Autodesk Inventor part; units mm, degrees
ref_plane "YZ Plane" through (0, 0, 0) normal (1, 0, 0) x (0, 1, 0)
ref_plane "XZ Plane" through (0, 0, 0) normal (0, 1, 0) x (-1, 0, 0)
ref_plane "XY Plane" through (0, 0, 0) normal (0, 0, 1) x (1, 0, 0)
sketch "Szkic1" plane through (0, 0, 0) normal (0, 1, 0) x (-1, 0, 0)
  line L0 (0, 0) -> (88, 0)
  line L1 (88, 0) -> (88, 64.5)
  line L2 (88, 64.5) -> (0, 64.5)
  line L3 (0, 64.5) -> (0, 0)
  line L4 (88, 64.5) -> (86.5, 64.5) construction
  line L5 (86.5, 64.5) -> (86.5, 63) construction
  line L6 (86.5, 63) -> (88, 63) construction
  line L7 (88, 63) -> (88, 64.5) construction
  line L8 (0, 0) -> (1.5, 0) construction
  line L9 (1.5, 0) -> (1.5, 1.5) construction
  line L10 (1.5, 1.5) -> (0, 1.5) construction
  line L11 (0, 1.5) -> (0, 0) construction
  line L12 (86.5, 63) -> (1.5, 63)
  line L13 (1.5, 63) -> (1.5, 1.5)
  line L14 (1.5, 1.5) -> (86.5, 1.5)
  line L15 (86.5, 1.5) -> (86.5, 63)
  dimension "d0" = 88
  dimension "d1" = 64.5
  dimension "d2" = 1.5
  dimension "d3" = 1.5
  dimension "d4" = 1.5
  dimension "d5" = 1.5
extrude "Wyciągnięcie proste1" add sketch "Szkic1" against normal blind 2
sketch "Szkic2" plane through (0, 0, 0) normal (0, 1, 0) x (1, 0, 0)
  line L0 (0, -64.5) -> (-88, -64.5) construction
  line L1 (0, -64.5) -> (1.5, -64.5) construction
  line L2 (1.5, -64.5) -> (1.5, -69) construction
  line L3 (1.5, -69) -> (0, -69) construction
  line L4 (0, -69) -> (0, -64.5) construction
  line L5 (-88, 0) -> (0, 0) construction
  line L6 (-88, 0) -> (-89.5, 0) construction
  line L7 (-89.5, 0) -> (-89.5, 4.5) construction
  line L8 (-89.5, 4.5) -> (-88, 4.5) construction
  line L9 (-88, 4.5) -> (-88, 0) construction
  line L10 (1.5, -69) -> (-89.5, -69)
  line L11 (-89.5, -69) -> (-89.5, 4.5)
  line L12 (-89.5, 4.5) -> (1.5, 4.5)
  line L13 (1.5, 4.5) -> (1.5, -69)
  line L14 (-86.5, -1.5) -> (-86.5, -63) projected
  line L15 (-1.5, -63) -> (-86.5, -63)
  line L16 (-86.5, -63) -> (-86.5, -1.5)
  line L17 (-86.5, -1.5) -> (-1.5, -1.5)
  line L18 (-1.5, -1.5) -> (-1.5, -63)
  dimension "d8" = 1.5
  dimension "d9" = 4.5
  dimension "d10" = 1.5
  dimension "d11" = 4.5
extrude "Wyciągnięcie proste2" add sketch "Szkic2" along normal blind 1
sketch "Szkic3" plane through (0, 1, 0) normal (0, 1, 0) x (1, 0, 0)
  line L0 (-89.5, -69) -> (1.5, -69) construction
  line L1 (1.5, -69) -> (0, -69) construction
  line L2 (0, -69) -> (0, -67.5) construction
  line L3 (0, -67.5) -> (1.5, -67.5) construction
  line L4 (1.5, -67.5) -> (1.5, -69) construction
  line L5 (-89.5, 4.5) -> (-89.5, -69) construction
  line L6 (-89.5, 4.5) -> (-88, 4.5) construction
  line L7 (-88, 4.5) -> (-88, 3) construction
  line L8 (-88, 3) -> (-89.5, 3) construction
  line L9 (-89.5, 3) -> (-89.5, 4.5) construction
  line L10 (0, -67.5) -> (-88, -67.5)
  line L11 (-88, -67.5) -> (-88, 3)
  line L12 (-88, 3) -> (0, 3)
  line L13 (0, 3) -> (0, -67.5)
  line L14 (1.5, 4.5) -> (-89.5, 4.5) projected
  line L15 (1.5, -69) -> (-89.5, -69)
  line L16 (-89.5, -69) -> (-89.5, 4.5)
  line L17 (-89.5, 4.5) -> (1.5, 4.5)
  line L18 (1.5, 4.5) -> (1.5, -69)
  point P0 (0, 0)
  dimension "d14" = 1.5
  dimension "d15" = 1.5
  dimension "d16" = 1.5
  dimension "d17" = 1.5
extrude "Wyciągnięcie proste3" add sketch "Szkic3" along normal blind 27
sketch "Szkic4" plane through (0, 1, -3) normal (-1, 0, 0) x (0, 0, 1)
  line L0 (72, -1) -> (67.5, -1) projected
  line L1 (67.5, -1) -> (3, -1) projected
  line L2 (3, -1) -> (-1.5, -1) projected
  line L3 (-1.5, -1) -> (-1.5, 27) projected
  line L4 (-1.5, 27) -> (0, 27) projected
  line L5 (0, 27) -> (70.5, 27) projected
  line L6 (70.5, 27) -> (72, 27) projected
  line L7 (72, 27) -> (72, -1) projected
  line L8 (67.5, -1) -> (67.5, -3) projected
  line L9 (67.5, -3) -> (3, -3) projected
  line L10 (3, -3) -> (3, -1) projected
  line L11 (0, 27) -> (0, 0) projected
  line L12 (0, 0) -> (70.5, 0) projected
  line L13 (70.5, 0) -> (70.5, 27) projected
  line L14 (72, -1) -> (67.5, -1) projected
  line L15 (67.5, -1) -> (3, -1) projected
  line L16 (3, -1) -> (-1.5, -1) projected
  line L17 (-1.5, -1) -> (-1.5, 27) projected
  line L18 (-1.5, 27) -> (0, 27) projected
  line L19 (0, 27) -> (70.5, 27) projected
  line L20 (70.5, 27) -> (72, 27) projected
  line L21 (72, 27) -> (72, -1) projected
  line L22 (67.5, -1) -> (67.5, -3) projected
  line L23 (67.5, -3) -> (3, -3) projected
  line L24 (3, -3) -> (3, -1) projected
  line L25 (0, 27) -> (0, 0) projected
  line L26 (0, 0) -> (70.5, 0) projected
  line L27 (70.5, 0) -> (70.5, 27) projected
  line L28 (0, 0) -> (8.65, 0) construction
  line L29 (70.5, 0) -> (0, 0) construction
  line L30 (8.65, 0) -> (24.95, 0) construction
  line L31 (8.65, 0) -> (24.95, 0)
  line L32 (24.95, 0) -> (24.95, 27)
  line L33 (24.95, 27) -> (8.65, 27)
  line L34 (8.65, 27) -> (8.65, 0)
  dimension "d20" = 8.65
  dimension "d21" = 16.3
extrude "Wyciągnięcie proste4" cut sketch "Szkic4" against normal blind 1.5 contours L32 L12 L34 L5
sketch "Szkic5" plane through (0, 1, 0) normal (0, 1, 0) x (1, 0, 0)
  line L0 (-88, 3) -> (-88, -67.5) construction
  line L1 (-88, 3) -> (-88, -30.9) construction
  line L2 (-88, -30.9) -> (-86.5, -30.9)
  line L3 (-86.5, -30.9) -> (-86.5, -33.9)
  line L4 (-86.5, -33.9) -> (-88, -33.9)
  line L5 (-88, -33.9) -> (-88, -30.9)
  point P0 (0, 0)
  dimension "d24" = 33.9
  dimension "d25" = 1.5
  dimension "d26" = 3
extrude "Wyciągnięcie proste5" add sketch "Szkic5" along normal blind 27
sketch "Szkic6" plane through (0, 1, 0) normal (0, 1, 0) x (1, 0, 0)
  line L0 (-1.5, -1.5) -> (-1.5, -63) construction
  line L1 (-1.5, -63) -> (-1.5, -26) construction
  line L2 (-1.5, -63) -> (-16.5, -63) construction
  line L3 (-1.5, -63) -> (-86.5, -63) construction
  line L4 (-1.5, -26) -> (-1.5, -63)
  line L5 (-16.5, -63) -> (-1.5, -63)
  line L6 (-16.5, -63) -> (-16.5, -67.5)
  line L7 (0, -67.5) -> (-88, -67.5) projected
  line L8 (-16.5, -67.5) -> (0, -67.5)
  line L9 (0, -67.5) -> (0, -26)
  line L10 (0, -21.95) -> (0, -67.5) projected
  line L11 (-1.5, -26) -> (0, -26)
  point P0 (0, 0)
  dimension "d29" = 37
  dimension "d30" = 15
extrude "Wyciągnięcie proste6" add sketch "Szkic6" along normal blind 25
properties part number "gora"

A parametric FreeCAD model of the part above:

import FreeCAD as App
import Part
import Sketcher

V = App.Vector
Q = App.Units.Quantity


def add_polygon(sketch, points):
    """Adds a closed chain of lines whose ends are joined by coincident constraints."""
    first, n = sketch.GeometryCount, len(points)
    for a, b in zip(points, points[1:] + points[:1]):
        sketch.addGeometry(Part.LineSegment(App.Vector(*a, 0), App.Vector(*b, 0)), False)
    for i in range(n):
        sketch.addConstraint(Sketcher.Constraint("Coincident", first + i, 2, first + (i + 1) % n, 1))

doc = App.newDocument("Part")
body = doc.addObject("PartDesign::Body", "Body")

# Sketch on XZ plane
sketch1 = body.newObject("Sketcher::SketchObject", "Sketch")
sketch1.AttachmentSupport = (doc.getObject("XZ_Plane"), [""])
sketch1.MapMode = "FlatFace"
add_polygon(sketch1, [(0, 64.5), (0, 0), (-88, 0), (-88, 64.5)])  # lines 0-3
add_polygon(sketch1, [(-1.5, 63), (-86.5, 63), (-86.5, 1.5), (-1.5, 1.5)])  # lines 4-7
sketch1.addConstraint(Sketcher.Constraint("Vertical", 0))
sketch1.addConstraint(Sketcher.Constraint("Horizontal", 1))
sketch1.addConstraint(Sketcher.Constraint("Vertical", 2))
sketch1.addConstraint(Sketcher.Constraint("Horizontal", 3))
sketch1.addConstraint(Sketcher.Constraint("Horizontal", 4))
sketch1.addConstraint(Sketcher.Constraint("Vertical", 5))
sketch1.addConstraint(Sketcher.Constraint("Horizontal", 6))
sketch1.addConstraint(Sketcher.Constraint("Vertical", 7))
sketch1.addConstraint(Sketcher.Constraint("Coincident", 0, 2, -1, 1))
sketch1.addConstraint(Sketcher.Constraint("DistanceX", 1, 2, 1, 1, Q("88 mm")))
sketch1.addConstraint(Sketcher.Constraint("DistanceY", 0, 2, 0, 1, Q("64.5 mm")))
sketch1.addConstraint(Sketcher.Constraint("DistanceY", -1, 1, 5, 2, Q("1.5 mm")))
sketch1.addConstraint(Sketcher.Constraint("DistanceX", 6, 2, -1, 1, Q("1.5 mm")))
sketch1.addConstraint(Sketcher.Constraint("DistanceX", 2, 2, 4, 2, Q("1.5 mm")))
sketch1.addConstraint(Sketcher.Constraint("DistanceY", 4, 2, 2, 2, Q("1.5 mm")))
pad1 = body.newObject("PartDesign::Pad", "Pad")
pad1.Profile = sketch1
pad1.Length = 2

# Sketch on XZ plane
sketch2 = body.newObject("Sketcher::SketchObject", "Sketch001")
sketch2.AttachmentSupport = (doc.getObject("XZ_Plane"), [""])
sketch2.MapMode = "FlatFace"
add_polygon(sketch2, [(-89.5, 69), (1.5, 69), (1.5, -4.5), (-89.5, -4.5)])  # lines 0-3
add_polygon(sketch2, [(-86.5, 63), (-86.5, 1.5), (-1.5, 1.5), (-1.5, 63)])  # lines 4-7
sketch2.addConstraint(Sketcher.Constraint("Horizontal", 0))
sketch2.addConstraint(Sketcher.Constraint("Vertical", 1))
sketch2.addConstraint(Sketcher.Constraint("Horizontal", 2))
sketch2.addConstraint(Sketcher.Constraint("Vertical", 3))
sketch2.addConstraint(Sketcher.Constraint("Vertical", 4))
sketch2.addConstraint(Sketcher.Constraint("Horizontal", 5))
sketch2.addConstraint(Sketcher.Constraint("Vertical", 6))
sketch2.addConstraint(Sketcher.Constraint("Horizontal", 7))
sketch2.addConstraint(Sketcher.Constraint("DistanceX", -1, 1, 0, 2, Q("1.5 mm")))
sketch2.addConstraint(Sketcher.Constraint("DistanceY", 1, 2, -1, 1, Q("4.5 mm")))
sketch2.addConstraint(Sketcher.Constraint("DistanceY", -1, 1, 4, 2, Q("1.5 mm")))
sketch2.addConstraint(Sketcher.Constraint("DistanceX", 5, 2, -1, 1, Q("1.5 mm")))
sketch2.addConstraint(Sketcher.Constraint("DistanceX", 0, 1, 0, 2, Q("91 mm")))
sketch2.addConstraint(Sketcher.Constraint("DistanceX", 5, 1, 5, 2, Q("85 mm")))
sketch2.addConstraint(Sketcher.Constraint("DistanceY", 1, 2, 1, 1, Q("73.5 mm")))
sketch2.addConstraint(Sketcher.Constraint("DistanceY", 4, 2, 4, 1, Q("61.5 mm")))
pad2 = body.newObject("PartDesign::Pad", "Pad001")
pad2.Profile = sketch2
pad2.Length = 1
pad2.Reversed = True

# Sketch on XZ plane
sketch3 = body.newObject("Sketcher::SketchObject", "Sketch002")
sketch3.AttachmentSupport = (doc.getObject("XZ_Plane"), [""])
sketch3.MapMode = "FlatFace"
sketch3.AttachmentOffset = App.Placement(V(0, 0, -1), App.Rotation())
add_polygon(sketch3, [(1.5, 69), (1.5, -4.5), (-89.5, -4.5), (-89.5, 69)])  # lines 0-3
add_polygon(sketch3, [(0, -3), (0, 67.5), (-88, 67.5), (-88, -3)])  # lines 4-7
sketch3.addConstraint(Sketcher.Constraint("Vertical", 0))
sketch3.addConstraint(Sketcher.Constraint("Horizontal", 1))
sketch3.addConstraint(Sketcher.Constraint("Vertical", 2))
sketch3.addConstraint(Sketcher.Constraint("Horizontal", 3))
sketch3.addConstraint(Sketcher.Constraint("Vertical", 4))
sketch3.addConstraint(Sketcher.Constraint("Horizontal", 5))
sketch3.addConstraint(Sketcher.Constraint("Vertical", 6))
sketch3.addConstraint(Sketcher.Constraint("Horizontal", 7))
sketch3.addConstraint(Sketcher.Constraint("PointOnObject", 4, 2, -2))
sketch3.addConstraint(Sketcher.Constraint("DistanceX", -1, 1, 0, 2, Q("1.5 mm")))
sketch3.addConstraint(Sketcher.Constraint("DistanceY", 4, 2, 3, 2, Q("1.5 mm")))
sketch3.addConstraint(Sketcher.Constraint("DistanceX", 2, 2, 5, 2, Q("1.5 mm")))
sketch3.addConstraint(Sketcher.Constraint("DistanceY", 1, 2, 6, 2, Q("1.5 mm")))
sketch3.addConstraint(Sketcher.Constraint("DistanceX", 1, 2, 1, 1, Q("91 mm")))
sketch3.addConstraint(Sketcher.Constraint("DistanceY", 0, 2, 0, 1, Q("73.5 mm")))
sketch3.addConstraint(Sketcher.Constraint("DistanceY", -1, 1, 2, 2, Q("69 mm")))
pad3 = body.newObject("PartDesign::Pad", "Pad002")
pad3.Profile = sketch3
pad3.Length = 27
pad3.Reversed = True

# Sketch on YZ plane
sketch4 = body.newObject("Sketcher::SketchObject", "Sketch003")
sketch4.AttachmentSupport = (doc.getObject("YZ_Plane"), [""])
sketch4.MapMode = "FlatFace"
add_polygon(sketch4, [(1, 21.95), (28, 21.95), (28, 5.65), (1, 5.65)])  # lines 0-3
sketch4.addConstraint(Sketcher.Constraint("Horizontal", 0))
sketch4.addConstraint(Sketcher.Constraint("Vertical", 1))
sketch4.addConstraint(Sketcher.Constraint("Horizontal", 2))
sketch4.addConstraint(Sketcher.Constraint("Vertical", 3))
sketch4.addConstraint(Sketcher.Constraint("DistanceY", 1, 2, 1, 1, Q("16.3 mm")))
sketch4.addConstraint(Sketcher.Constraint("DistanceX", 0, 1, 0, 2, Q("27 mm")))
sketch4.addConstraint(Sketcher.Constraint("DistanceX", -1, 1, 0, 2, Q("28 mm")))
sketch4.addConstraint(Sketcher.Constraint("DistanceY", -1, 1, 0, 2, Q("21.95 mm")))
pocket1 = body.newObject("PartDesign::Pocket", "Pocket")
pocket1.Profile = sketch4
pocket1.Length = 1.5
pocket1.Reversed = True

# Sketch on XZ plane
sketch5 = body.newObject("Sketcher::SketchObject", "Sketch004")
sketch5.AttachmentSupport = (doc.getObject("XZ_Plane"), [""])
sketch5.MapMode = "FlatFace"
sketch5.AttachmentOffset = App.Placement(V(0, 0, -1), App.Rotation())
add_polygon(sketch5, [(-86.5, 30.9), (-88, 30.9), (-88, 33.9), (-86.5, 33.9)])  # lines 0-3
sketch5.addConstraint(Sketcher.Constraint("Horizontal", 0))
sketch5.addConstraint(Sketcher.Constraint("Vertical", 1))
sketch5.addConstraint(Sketcher.Constraint("Horizontal", 2))
sketch5.addConstraint(Sketcher.Constraint("Vertical", 3))
sketch5.addConstraint(Sketcher.Constraint("DistanceY", 1, 1, 1, 2, Q("3 mm")))
sketch5.addConstraint(Sketcher.Constraint("DistanceX", 0, 2, 0, 1, Q("1.5 mm")))
sketch5.addConstraint(Sketcher.Constraint("DistanceY", -1, 1, 1, 2, Q("33.9 mm")))
sketch5.addConstraint(Sketcher.Constraint("DistanceX", 0, 2, -1, 1, Q("88 mm")))
pad4 = body.newObject("PartDesign::Pad", "Pad003")
pad4.Profile = sketch5
pad4.Length = 27
pad4.Reversed = True

# Sketch on XZ plane
sketch6 = body.newObject("Sketcher::SketchObject", "Sketch005")
sketch6.AttachmentSupport = (doc.getObject("XZ_Plane"), [""])
sketch6.MapMode = "FlatFace"
sketch6.AttachmentOffset = App.Placement(V(0, 0, -1), App.Rotation())
add_polygon(sketch6, [(0, 26), (-1.5, 26), (-1.5, 63), (-16.5, 63), (-16.5, 67.5), (0, 67.5)])  # lines 0-5
sketch6.addConstraint(Sketcher.Constraint("Horizontal", 0))
sketch6.addConstraint(Sketcher.Constraint("Vertical", 1))
sketch6.addConstraint(Sketcher.Constraint("Horizontal", 2))
sketch6.addConstraint(Sketcher.Constraint("Vertical", 3))
sketch6.addConstraint(Sketcher.Constraint("Horizontal", 4))
sketch6.addConstraint(Sketcher.Constraint("Vertical", 5))
sketch6.addConstraint(Sketcher.Constraint("PointOnObject", 4, 2, -2))
sketch6.addConstraint(Sketcher.Constraint("DistanceX", 2, 2, 2, 1, Q("15 mm")))
sketch6.addConstraint(Sketcher.Constraint("DistanceY", 1, 1, 1, 2, Q("37 mm")))
sketch6.addConstraint(Sketcher.Constraint("DistanceX", 0, 2, 0, 1, Q("1.5 mm")))
sketch6.addConstraint(Sketcher.Constraint("DistanceY", 3, 1, 3, 2, Q("4.5 mm")))
sketch6.addConstraint(Sketcher.Constraint("DistanceY", -1, 1, 0, 2, Q("26 mm")))
pad5 = body.newObject("PartDesign::Pad", "Pad004")
pad5.Profile = sketch6
pad5.Length = 25
pad5.Reversed = True

doc.recompute()
